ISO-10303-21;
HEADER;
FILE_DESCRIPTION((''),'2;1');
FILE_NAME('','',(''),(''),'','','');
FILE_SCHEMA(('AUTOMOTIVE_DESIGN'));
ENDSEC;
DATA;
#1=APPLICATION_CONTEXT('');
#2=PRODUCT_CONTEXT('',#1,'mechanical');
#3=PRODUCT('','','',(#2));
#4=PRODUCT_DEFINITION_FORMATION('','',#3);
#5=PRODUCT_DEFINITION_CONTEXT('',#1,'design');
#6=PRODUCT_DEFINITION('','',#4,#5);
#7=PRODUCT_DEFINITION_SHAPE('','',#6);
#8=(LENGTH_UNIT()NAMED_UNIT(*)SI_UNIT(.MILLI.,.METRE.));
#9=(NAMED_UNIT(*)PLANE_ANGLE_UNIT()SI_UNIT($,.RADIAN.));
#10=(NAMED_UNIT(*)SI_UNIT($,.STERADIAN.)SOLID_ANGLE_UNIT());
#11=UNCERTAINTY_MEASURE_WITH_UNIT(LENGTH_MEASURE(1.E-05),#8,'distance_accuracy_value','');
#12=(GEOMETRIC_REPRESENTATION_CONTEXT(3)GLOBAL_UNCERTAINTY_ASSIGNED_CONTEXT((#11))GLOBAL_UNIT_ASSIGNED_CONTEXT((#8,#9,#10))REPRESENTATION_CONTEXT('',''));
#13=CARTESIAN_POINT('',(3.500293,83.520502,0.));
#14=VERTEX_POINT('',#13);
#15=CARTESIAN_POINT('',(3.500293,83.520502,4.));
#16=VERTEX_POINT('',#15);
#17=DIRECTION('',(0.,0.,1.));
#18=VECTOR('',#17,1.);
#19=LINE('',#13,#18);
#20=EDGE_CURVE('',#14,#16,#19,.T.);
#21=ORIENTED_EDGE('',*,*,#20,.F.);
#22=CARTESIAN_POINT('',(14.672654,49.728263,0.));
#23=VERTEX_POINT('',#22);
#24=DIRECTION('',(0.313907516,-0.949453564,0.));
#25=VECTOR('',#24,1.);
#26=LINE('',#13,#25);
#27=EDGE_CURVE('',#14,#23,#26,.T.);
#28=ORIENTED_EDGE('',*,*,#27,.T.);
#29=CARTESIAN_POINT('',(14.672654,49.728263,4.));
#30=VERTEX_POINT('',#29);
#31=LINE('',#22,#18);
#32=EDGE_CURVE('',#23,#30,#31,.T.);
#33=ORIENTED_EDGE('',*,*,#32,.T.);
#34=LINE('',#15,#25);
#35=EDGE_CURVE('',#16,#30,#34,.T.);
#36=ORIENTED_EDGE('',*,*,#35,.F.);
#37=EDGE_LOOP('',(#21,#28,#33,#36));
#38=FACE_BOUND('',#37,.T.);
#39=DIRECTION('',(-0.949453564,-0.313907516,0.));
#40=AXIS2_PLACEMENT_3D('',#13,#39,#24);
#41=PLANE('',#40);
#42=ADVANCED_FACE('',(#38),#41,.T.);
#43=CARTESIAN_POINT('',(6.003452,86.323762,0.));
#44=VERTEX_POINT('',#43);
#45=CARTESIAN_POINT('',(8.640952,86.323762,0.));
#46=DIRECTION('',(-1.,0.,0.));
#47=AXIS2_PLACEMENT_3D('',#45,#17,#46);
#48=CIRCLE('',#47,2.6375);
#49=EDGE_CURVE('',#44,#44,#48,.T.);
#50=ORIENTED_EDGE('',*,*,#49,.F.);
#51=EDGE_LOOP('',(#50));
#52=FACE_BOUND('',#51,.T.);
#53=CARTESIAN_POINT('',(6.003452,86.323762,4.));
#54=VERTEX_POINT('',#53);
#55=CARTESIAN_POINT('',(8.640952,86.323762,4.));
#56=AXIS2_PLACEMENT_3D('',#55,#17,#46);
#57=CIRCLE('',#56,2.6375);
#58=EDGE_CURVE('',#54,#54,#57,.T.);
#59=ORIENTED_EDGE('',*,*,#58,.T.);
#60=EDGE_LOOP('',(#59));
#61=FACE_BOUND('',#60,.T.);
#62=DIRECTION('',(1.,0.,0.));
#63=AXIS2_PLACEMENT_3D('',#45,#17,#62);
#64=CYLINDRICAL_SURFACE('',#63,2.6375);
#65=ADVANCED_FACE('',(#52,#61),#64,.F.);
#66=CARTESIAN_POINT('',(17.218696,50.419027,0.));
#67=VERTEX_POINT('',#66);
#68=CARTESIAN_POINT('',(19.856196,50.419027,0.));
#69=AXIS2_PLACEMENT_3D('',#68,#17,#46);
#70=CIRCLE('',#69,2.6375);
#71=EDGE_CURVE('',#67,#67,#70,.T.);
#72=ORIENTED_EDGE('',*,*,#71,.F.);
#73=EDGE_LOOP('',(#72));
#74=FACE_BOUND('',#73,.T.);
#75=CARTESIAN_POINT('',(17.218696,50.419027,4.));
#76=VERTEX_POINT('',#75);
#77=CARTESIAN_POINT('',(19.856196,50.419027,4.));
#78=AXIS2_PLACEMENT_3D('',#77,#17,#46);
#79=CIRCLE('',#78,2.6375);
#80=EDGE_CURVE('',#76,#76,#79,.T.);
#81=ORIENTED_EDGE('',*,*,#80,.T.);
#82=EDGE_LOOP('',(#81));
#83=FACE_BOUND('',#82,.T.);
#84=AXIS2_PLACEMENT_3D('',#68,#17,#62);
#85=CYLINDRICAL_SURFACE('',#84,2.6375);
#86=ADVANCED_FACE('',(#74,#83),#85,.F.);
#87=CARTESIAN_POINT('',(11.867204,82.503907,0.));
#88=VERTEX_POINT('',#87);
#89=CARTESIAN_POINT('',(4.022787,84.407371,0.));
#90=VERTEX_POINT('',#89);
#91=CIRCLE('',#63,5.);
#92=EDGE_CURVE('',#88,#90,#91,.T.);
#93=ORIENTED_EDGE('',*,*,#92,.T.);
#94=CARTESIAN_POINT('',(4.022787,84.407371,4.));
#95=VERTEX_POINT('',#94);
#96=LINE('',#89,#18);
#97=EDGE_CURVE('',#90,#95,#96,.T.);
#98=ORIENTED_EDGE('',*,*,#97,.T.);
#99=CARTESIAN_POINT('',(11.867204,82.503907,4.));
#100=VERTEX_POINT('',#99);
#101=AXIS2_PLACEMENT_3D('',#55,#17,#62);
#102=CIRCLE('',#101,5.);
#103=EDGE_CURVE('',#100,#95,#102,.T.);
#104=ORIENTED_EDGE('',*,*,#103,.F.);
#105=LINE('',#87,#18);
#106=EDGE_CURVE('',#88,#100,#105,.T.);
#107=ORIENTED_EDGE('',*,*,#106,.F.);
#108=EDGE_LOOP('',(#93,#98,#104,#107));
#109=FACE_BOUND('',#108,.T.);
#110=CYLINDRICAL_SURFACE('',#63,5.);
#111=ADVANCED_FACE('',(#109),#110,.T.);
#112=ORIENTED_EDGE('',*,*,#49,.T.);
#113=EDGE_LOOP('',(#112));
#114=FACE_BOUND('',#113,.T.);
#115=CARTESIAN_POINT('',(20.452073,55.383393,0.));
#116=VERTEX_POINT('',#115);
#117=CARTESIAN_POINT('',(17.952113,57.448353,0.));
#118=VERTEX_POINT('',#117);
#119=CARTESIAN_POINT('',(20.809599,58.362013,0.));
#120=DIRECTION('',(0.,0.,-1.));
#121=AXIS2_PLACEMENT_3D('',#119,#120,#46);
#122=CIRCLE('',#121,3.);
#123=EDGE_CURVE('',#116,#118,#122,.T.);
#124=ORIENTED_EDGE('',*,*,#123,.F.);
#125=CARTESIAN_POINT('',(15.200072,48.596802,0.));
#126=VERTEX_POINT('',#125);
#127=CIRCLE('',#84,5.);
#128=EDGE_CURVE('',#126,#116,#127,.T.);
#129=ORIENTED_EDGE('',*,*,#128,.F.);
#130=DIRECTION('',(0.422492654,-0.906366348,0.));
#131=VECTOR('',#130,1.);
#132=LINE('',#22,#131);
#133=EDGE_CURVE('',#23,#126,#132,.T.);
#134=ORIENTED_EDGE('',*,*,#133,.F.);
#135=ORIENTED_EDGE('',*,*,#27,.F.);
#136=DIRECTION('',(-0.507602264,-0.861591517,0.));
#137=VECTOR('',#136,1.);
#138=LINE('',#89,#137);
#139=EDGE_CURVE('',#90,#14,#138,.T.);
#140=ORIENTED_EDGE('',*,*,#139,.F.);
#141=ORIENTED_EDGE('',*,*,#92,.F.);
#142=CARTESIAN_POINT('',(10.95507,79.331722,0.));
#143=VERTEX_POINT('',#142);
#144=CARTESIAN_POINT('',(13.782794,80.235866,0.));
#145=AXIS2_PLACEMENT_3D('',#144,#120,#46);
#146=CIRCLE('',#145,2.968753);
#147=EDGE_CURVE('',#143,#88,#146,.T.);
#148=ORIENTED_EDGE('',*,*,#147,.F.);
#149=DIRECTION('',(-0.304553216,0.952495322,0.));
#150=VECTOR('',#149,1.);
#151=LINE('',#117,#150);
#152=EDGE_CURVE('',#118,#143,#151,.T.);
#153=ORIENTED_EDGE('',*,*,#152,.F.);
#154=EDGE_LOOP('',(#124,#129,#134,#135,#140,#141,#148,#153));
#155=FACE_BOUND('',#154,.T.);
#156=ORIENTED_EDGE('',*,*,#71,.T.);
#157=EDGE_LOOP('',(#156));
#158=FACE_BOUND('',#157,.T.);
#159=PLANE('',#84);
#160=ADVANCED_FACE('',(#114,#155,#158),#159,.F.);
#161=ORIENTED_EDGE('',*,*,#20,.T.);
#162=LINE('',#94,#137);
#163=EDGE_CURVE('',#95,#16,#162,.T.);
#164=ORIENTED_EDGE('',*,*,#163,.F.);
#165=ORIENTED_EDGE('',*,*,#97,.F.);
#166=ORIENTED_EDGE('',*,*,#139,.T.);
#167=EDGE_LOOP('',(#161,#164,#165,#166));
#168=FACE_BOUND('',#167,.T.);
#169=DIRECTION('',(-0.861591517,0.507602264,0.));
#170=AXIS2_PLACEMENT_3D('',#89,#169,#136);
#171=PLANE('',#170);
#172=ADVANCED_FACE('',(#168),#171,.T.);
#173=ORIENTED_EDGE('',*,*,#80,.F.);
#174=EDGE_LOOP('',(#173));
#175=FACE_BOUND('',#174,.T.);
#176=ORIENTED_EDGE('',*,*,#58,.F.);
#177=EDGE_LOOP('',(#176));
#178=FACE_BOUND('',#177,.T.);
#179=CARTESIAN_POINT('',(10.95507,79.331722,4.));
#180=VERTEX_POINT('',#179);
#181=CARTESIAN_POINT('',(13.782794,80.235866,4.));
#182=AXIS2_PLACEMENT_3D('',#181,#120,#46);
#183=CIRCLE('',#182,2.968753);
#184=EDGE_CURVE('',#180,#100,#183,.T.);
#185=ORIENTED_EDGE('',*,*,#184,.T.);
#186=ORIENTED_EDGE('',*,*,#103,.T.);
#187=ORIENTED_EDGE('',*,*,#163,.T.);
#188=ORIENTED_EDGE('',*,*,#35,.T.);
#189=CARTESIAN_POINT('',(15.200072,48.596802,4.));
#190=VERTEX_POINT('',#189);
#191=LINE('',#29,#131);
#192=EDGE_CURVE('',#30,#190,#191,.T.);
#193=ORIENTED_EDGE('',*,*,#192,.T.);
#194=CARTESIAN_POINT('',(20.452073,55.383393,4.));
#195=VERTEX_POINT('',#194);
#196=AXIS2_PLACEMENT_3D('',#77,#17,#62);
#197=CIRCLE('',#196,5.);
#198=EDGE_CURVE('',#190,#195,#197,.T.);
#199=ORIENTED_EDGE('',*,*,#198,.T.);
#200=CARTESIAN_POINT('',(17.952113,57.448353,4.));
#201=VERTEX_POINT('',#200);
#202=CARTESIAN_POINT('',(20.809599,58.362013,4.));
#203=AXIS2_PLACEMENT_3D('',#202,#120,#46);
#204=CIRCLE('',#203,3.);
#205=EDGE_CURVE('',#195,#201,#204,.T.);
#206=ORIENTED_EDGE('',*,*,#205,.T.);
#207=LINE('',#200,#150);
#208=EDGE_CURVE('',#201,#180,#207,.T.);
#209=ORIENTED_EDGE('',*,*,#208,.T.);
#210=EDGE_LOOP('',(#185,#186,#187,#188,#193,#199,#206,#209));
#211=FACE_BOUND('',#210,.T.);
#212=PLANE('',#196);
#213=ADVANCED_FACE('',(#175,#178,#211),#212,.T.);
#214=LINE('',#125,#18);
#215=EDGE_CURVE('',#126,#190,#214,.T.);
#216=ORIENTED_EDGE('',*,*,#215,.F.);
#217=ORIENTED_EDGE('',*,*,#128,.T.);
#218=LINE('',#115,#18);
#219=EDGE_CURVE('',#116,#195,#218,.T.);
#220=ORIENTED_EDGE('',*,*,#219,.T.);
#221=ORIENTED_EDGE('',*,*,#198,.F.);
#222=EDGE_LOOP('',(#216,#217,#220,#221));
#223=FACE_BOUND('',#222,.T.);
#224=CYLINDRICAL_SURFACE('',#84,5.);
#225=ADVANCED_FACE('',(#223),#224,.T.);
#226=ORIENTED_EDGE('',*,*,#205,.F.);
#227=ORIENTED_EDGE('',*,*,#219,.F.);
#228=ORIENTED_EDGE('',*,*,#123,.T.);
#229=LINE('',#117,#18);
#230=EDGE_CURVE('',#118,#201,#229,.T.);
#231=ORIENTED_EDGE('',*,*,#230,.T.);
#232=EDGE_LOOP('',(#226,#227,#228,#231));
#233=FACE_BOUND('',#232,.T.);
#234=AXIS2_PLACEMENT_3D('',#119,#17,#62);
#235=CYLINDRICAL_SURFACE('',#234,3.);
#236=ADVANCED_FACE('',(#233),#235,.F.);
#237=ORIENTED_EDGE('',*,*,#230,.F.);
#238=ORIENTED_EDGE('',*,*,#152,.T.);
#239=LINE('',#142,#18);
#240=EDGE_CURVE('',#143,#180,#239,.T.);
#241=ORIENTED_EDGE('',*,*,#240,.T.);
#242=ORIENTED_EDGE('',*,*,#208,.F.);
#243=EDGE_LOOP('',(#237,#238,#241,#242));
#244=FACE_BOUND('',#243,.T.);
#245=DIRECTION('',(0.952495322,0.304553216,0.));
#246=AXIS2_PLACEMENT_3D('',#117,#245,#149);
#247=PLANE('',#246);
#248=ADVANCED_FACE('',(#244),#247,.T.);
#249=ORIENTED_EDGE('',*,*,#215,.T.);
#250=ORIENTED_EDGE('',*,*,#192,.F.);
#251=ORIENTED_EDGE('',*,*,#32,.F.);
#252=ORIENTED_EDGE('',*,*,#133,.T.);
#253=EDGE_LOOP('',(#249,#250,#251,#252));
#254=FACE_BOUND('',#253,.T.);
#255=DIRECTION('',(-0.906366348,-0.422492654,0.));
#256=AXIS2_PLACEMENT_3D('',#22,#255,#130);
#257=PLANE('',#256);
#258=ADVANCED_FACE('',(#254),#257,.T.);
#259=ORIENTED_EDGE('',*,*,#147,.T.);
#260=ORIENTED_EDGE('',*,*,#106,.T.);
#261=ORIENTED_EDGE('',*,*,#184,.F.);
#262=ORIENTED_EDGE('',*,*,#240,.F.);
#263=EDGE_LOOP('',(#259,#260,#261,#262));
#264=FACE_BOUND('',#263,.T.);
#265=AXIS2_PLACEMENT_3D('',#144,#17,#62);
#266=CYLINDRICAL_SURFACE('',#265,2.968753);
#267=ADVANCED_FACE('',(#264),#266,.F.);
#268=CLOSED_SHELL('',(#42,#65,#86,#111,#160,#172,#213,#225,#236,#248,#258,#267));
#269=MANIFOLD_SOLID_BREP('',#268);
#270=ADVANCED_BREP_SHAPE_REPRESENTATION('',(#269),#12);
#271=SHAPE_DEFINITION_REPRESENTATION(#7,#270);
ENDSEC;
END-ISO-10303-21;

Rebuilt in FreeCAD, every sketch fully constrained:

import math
import FreeCAD as App
import Part
import Sketcher

V = App.Vector

doc = App.newDocument("Part")
body = doc.addObject("PartDesign::Body", "Body")

sketch1 = body.newObject("Sketcher::SketchObject", "Sketch")
sketch1.AttachmentSupport = (doc.getObject("XY_Plane"), [""])
sketch1.MapMode = "FlatFace"
sketch1.AttachmentOffset = App.Placement(V(0, 0, 4), App.Rotation())
sketch1.addGeometry(Part.LineSegment(V(17.952113, 57.448353, 0), V(10.95507, 79.331722, 0)), False)
sketch1.addGeometry(Part.ArcOfCircle(Part.Circle(V(13.782794, 80.235866, 0), V(0, 0, 1), 2.968753), math.radians(130.184461), math.radians(197.731286)), False)
sketch1.addGeometry(Part.ArcOfCircle(Part.Circle(V(8.640952, 86.323762, 0), V(0, 0, 1), 5), math.radians(-49.815539), math.radians(202.536889)), False)
sketch1.addGeometry(Part.LineSegment(V(4.022787, 84.407371, 0), V(3.500293, 83.520502, 0)), False)
sketch1.addGeometry(Part.LineSegment(V(3.500293, 83.520502, 0), V(14.672654, 49.728263, 0)), False)
sketch1.addGeometry(Part.LineSegment(V(14.672654, 49.728263, 0), V(15.200072, 48.596802, 0)), False)
sketch1.addGeometry(Part.ArcOfCircle(Part.Circle(V(19.856196, 50.419027, 0), V(0, 0, 1), 5), math.radians(-158.626569), math.radians(83.155488)), False)
sketch1.addGeometry(Part.ArcOfCircle(Part.Circle(V(20.809599, 58.362013, 0), V(0, 0, 1), 3), math.radians(-162.268714), math.radians(-96.844512)), False)
sketch1.addGeometry(Part.Circle(V(19.856196, 50.419027, 0), V(0, 0, 1), 2.6375), False)
sketch1.addGeometry(Part.Circle(V(8.640952, 86.323762, 0), V(0, 0, 1), 2.6375), False)
sketch1.addConstraint(Sketcher.Constraint("Tangent", 0, 2, 1, 2))
sketch1.addConstraint(Sketcher.Constraint("Tangent", 1, 1, 2, 1))
sketch1.addConstraint(Sketcher.Constraint("Coincident", 2, 2, 3, 1))
sketch1.addConstraint(Sketcher.Constraint("Coincident", 3, 2, 4, 1))
sketch1.addConstraint(Sketcher.Constraint("Coincident", 4, 2, 5, 1))
sketch1.addConstraint(Sketcher.Constraint("Coincident", 5, 2, 6, 1))
sketch1.addConstraint(Sketcher.Constraint("Tangent", 6, 2, 7, 2))
sketch1.addConstraint(Sketcher.Constraint("Tangent", 7, 1, 0, 1))
sketch1.addConstraint(Sketcher.Constraint("Coincident", 8, 3, 6, 3))
sketch1.addConstraint(Sketcher.Constraint("Coincident", 9, 3, 2, 3))
sketch1.addConstraint(Sketcher.Constraint("Equal", 2, 6))
sketch1.addConstraint(Sketcher.Constraint("Equal", 8, 9))
sketch1.addConstraint(Sketcher.Constraint("Radius", 2, 5.0))
sketch1.addConstraint(Sketcher.Constraint("Radius", 7, 3.0))
sketch1.addConstraint(Sketcher.Constraint("Diameter", 8, 5.275))
sketch1.addConstraint(Sketcher.Constraint("Radius", 1, 2.968753))
sketch1.addConstraint(Sketcher.Constraint("DistanceX", 0, 2, 5, 2, 4.245001))
sketch1.addConstraint(Sketcher.Constraint("DistanceX", 5, 2, 6, 2, 5.252001))
sketch1.addConstraint(Sketcher.Constraint("DistanceX", -1, 1, 7, 3, 20.809599))
sketch1.addConstraint(Sketcher.Constraint("DistanceY", -1, 1, 5, 2, 48.596802))
sketch1.addConstraint(Sketcher.Constraint("Distance", 0, 22.974779))
sketch1.addConstraint(Sketcher.Constraint("Distance", 4, 35.59125))
sketch1.addConstraint(Sketcher.Constraint("Distance", 5, 1.248348))
sketch1.addConstraint(Sketcher.Constraint("DistanceX", -1, 1, 2, 3, 8.640952))
sketch1.addConstraint(Sketcher.Constraint("DistanceX", -1, 1, 0, 2, 10.95507))
sketch1.addConstraint(Sketcher.Constraint("DistanceY", -1, 1, 2, 2, 84.407371))
sketch1.addConstraint(Sketcher.Constraint("DistanceY", 3, 2, 2, 2, 0.886869))
sketch1.addConstraint(Sketcher.Constraint("DistanceX", 3, 2, 9, 3, 5.140659))
pad1 = body.newObject("PartDesign::Pad", "Pad")
pad1.Profile = sketch1
pad1.Length = 4
pad1.Reversed = True

doc.recompute()
